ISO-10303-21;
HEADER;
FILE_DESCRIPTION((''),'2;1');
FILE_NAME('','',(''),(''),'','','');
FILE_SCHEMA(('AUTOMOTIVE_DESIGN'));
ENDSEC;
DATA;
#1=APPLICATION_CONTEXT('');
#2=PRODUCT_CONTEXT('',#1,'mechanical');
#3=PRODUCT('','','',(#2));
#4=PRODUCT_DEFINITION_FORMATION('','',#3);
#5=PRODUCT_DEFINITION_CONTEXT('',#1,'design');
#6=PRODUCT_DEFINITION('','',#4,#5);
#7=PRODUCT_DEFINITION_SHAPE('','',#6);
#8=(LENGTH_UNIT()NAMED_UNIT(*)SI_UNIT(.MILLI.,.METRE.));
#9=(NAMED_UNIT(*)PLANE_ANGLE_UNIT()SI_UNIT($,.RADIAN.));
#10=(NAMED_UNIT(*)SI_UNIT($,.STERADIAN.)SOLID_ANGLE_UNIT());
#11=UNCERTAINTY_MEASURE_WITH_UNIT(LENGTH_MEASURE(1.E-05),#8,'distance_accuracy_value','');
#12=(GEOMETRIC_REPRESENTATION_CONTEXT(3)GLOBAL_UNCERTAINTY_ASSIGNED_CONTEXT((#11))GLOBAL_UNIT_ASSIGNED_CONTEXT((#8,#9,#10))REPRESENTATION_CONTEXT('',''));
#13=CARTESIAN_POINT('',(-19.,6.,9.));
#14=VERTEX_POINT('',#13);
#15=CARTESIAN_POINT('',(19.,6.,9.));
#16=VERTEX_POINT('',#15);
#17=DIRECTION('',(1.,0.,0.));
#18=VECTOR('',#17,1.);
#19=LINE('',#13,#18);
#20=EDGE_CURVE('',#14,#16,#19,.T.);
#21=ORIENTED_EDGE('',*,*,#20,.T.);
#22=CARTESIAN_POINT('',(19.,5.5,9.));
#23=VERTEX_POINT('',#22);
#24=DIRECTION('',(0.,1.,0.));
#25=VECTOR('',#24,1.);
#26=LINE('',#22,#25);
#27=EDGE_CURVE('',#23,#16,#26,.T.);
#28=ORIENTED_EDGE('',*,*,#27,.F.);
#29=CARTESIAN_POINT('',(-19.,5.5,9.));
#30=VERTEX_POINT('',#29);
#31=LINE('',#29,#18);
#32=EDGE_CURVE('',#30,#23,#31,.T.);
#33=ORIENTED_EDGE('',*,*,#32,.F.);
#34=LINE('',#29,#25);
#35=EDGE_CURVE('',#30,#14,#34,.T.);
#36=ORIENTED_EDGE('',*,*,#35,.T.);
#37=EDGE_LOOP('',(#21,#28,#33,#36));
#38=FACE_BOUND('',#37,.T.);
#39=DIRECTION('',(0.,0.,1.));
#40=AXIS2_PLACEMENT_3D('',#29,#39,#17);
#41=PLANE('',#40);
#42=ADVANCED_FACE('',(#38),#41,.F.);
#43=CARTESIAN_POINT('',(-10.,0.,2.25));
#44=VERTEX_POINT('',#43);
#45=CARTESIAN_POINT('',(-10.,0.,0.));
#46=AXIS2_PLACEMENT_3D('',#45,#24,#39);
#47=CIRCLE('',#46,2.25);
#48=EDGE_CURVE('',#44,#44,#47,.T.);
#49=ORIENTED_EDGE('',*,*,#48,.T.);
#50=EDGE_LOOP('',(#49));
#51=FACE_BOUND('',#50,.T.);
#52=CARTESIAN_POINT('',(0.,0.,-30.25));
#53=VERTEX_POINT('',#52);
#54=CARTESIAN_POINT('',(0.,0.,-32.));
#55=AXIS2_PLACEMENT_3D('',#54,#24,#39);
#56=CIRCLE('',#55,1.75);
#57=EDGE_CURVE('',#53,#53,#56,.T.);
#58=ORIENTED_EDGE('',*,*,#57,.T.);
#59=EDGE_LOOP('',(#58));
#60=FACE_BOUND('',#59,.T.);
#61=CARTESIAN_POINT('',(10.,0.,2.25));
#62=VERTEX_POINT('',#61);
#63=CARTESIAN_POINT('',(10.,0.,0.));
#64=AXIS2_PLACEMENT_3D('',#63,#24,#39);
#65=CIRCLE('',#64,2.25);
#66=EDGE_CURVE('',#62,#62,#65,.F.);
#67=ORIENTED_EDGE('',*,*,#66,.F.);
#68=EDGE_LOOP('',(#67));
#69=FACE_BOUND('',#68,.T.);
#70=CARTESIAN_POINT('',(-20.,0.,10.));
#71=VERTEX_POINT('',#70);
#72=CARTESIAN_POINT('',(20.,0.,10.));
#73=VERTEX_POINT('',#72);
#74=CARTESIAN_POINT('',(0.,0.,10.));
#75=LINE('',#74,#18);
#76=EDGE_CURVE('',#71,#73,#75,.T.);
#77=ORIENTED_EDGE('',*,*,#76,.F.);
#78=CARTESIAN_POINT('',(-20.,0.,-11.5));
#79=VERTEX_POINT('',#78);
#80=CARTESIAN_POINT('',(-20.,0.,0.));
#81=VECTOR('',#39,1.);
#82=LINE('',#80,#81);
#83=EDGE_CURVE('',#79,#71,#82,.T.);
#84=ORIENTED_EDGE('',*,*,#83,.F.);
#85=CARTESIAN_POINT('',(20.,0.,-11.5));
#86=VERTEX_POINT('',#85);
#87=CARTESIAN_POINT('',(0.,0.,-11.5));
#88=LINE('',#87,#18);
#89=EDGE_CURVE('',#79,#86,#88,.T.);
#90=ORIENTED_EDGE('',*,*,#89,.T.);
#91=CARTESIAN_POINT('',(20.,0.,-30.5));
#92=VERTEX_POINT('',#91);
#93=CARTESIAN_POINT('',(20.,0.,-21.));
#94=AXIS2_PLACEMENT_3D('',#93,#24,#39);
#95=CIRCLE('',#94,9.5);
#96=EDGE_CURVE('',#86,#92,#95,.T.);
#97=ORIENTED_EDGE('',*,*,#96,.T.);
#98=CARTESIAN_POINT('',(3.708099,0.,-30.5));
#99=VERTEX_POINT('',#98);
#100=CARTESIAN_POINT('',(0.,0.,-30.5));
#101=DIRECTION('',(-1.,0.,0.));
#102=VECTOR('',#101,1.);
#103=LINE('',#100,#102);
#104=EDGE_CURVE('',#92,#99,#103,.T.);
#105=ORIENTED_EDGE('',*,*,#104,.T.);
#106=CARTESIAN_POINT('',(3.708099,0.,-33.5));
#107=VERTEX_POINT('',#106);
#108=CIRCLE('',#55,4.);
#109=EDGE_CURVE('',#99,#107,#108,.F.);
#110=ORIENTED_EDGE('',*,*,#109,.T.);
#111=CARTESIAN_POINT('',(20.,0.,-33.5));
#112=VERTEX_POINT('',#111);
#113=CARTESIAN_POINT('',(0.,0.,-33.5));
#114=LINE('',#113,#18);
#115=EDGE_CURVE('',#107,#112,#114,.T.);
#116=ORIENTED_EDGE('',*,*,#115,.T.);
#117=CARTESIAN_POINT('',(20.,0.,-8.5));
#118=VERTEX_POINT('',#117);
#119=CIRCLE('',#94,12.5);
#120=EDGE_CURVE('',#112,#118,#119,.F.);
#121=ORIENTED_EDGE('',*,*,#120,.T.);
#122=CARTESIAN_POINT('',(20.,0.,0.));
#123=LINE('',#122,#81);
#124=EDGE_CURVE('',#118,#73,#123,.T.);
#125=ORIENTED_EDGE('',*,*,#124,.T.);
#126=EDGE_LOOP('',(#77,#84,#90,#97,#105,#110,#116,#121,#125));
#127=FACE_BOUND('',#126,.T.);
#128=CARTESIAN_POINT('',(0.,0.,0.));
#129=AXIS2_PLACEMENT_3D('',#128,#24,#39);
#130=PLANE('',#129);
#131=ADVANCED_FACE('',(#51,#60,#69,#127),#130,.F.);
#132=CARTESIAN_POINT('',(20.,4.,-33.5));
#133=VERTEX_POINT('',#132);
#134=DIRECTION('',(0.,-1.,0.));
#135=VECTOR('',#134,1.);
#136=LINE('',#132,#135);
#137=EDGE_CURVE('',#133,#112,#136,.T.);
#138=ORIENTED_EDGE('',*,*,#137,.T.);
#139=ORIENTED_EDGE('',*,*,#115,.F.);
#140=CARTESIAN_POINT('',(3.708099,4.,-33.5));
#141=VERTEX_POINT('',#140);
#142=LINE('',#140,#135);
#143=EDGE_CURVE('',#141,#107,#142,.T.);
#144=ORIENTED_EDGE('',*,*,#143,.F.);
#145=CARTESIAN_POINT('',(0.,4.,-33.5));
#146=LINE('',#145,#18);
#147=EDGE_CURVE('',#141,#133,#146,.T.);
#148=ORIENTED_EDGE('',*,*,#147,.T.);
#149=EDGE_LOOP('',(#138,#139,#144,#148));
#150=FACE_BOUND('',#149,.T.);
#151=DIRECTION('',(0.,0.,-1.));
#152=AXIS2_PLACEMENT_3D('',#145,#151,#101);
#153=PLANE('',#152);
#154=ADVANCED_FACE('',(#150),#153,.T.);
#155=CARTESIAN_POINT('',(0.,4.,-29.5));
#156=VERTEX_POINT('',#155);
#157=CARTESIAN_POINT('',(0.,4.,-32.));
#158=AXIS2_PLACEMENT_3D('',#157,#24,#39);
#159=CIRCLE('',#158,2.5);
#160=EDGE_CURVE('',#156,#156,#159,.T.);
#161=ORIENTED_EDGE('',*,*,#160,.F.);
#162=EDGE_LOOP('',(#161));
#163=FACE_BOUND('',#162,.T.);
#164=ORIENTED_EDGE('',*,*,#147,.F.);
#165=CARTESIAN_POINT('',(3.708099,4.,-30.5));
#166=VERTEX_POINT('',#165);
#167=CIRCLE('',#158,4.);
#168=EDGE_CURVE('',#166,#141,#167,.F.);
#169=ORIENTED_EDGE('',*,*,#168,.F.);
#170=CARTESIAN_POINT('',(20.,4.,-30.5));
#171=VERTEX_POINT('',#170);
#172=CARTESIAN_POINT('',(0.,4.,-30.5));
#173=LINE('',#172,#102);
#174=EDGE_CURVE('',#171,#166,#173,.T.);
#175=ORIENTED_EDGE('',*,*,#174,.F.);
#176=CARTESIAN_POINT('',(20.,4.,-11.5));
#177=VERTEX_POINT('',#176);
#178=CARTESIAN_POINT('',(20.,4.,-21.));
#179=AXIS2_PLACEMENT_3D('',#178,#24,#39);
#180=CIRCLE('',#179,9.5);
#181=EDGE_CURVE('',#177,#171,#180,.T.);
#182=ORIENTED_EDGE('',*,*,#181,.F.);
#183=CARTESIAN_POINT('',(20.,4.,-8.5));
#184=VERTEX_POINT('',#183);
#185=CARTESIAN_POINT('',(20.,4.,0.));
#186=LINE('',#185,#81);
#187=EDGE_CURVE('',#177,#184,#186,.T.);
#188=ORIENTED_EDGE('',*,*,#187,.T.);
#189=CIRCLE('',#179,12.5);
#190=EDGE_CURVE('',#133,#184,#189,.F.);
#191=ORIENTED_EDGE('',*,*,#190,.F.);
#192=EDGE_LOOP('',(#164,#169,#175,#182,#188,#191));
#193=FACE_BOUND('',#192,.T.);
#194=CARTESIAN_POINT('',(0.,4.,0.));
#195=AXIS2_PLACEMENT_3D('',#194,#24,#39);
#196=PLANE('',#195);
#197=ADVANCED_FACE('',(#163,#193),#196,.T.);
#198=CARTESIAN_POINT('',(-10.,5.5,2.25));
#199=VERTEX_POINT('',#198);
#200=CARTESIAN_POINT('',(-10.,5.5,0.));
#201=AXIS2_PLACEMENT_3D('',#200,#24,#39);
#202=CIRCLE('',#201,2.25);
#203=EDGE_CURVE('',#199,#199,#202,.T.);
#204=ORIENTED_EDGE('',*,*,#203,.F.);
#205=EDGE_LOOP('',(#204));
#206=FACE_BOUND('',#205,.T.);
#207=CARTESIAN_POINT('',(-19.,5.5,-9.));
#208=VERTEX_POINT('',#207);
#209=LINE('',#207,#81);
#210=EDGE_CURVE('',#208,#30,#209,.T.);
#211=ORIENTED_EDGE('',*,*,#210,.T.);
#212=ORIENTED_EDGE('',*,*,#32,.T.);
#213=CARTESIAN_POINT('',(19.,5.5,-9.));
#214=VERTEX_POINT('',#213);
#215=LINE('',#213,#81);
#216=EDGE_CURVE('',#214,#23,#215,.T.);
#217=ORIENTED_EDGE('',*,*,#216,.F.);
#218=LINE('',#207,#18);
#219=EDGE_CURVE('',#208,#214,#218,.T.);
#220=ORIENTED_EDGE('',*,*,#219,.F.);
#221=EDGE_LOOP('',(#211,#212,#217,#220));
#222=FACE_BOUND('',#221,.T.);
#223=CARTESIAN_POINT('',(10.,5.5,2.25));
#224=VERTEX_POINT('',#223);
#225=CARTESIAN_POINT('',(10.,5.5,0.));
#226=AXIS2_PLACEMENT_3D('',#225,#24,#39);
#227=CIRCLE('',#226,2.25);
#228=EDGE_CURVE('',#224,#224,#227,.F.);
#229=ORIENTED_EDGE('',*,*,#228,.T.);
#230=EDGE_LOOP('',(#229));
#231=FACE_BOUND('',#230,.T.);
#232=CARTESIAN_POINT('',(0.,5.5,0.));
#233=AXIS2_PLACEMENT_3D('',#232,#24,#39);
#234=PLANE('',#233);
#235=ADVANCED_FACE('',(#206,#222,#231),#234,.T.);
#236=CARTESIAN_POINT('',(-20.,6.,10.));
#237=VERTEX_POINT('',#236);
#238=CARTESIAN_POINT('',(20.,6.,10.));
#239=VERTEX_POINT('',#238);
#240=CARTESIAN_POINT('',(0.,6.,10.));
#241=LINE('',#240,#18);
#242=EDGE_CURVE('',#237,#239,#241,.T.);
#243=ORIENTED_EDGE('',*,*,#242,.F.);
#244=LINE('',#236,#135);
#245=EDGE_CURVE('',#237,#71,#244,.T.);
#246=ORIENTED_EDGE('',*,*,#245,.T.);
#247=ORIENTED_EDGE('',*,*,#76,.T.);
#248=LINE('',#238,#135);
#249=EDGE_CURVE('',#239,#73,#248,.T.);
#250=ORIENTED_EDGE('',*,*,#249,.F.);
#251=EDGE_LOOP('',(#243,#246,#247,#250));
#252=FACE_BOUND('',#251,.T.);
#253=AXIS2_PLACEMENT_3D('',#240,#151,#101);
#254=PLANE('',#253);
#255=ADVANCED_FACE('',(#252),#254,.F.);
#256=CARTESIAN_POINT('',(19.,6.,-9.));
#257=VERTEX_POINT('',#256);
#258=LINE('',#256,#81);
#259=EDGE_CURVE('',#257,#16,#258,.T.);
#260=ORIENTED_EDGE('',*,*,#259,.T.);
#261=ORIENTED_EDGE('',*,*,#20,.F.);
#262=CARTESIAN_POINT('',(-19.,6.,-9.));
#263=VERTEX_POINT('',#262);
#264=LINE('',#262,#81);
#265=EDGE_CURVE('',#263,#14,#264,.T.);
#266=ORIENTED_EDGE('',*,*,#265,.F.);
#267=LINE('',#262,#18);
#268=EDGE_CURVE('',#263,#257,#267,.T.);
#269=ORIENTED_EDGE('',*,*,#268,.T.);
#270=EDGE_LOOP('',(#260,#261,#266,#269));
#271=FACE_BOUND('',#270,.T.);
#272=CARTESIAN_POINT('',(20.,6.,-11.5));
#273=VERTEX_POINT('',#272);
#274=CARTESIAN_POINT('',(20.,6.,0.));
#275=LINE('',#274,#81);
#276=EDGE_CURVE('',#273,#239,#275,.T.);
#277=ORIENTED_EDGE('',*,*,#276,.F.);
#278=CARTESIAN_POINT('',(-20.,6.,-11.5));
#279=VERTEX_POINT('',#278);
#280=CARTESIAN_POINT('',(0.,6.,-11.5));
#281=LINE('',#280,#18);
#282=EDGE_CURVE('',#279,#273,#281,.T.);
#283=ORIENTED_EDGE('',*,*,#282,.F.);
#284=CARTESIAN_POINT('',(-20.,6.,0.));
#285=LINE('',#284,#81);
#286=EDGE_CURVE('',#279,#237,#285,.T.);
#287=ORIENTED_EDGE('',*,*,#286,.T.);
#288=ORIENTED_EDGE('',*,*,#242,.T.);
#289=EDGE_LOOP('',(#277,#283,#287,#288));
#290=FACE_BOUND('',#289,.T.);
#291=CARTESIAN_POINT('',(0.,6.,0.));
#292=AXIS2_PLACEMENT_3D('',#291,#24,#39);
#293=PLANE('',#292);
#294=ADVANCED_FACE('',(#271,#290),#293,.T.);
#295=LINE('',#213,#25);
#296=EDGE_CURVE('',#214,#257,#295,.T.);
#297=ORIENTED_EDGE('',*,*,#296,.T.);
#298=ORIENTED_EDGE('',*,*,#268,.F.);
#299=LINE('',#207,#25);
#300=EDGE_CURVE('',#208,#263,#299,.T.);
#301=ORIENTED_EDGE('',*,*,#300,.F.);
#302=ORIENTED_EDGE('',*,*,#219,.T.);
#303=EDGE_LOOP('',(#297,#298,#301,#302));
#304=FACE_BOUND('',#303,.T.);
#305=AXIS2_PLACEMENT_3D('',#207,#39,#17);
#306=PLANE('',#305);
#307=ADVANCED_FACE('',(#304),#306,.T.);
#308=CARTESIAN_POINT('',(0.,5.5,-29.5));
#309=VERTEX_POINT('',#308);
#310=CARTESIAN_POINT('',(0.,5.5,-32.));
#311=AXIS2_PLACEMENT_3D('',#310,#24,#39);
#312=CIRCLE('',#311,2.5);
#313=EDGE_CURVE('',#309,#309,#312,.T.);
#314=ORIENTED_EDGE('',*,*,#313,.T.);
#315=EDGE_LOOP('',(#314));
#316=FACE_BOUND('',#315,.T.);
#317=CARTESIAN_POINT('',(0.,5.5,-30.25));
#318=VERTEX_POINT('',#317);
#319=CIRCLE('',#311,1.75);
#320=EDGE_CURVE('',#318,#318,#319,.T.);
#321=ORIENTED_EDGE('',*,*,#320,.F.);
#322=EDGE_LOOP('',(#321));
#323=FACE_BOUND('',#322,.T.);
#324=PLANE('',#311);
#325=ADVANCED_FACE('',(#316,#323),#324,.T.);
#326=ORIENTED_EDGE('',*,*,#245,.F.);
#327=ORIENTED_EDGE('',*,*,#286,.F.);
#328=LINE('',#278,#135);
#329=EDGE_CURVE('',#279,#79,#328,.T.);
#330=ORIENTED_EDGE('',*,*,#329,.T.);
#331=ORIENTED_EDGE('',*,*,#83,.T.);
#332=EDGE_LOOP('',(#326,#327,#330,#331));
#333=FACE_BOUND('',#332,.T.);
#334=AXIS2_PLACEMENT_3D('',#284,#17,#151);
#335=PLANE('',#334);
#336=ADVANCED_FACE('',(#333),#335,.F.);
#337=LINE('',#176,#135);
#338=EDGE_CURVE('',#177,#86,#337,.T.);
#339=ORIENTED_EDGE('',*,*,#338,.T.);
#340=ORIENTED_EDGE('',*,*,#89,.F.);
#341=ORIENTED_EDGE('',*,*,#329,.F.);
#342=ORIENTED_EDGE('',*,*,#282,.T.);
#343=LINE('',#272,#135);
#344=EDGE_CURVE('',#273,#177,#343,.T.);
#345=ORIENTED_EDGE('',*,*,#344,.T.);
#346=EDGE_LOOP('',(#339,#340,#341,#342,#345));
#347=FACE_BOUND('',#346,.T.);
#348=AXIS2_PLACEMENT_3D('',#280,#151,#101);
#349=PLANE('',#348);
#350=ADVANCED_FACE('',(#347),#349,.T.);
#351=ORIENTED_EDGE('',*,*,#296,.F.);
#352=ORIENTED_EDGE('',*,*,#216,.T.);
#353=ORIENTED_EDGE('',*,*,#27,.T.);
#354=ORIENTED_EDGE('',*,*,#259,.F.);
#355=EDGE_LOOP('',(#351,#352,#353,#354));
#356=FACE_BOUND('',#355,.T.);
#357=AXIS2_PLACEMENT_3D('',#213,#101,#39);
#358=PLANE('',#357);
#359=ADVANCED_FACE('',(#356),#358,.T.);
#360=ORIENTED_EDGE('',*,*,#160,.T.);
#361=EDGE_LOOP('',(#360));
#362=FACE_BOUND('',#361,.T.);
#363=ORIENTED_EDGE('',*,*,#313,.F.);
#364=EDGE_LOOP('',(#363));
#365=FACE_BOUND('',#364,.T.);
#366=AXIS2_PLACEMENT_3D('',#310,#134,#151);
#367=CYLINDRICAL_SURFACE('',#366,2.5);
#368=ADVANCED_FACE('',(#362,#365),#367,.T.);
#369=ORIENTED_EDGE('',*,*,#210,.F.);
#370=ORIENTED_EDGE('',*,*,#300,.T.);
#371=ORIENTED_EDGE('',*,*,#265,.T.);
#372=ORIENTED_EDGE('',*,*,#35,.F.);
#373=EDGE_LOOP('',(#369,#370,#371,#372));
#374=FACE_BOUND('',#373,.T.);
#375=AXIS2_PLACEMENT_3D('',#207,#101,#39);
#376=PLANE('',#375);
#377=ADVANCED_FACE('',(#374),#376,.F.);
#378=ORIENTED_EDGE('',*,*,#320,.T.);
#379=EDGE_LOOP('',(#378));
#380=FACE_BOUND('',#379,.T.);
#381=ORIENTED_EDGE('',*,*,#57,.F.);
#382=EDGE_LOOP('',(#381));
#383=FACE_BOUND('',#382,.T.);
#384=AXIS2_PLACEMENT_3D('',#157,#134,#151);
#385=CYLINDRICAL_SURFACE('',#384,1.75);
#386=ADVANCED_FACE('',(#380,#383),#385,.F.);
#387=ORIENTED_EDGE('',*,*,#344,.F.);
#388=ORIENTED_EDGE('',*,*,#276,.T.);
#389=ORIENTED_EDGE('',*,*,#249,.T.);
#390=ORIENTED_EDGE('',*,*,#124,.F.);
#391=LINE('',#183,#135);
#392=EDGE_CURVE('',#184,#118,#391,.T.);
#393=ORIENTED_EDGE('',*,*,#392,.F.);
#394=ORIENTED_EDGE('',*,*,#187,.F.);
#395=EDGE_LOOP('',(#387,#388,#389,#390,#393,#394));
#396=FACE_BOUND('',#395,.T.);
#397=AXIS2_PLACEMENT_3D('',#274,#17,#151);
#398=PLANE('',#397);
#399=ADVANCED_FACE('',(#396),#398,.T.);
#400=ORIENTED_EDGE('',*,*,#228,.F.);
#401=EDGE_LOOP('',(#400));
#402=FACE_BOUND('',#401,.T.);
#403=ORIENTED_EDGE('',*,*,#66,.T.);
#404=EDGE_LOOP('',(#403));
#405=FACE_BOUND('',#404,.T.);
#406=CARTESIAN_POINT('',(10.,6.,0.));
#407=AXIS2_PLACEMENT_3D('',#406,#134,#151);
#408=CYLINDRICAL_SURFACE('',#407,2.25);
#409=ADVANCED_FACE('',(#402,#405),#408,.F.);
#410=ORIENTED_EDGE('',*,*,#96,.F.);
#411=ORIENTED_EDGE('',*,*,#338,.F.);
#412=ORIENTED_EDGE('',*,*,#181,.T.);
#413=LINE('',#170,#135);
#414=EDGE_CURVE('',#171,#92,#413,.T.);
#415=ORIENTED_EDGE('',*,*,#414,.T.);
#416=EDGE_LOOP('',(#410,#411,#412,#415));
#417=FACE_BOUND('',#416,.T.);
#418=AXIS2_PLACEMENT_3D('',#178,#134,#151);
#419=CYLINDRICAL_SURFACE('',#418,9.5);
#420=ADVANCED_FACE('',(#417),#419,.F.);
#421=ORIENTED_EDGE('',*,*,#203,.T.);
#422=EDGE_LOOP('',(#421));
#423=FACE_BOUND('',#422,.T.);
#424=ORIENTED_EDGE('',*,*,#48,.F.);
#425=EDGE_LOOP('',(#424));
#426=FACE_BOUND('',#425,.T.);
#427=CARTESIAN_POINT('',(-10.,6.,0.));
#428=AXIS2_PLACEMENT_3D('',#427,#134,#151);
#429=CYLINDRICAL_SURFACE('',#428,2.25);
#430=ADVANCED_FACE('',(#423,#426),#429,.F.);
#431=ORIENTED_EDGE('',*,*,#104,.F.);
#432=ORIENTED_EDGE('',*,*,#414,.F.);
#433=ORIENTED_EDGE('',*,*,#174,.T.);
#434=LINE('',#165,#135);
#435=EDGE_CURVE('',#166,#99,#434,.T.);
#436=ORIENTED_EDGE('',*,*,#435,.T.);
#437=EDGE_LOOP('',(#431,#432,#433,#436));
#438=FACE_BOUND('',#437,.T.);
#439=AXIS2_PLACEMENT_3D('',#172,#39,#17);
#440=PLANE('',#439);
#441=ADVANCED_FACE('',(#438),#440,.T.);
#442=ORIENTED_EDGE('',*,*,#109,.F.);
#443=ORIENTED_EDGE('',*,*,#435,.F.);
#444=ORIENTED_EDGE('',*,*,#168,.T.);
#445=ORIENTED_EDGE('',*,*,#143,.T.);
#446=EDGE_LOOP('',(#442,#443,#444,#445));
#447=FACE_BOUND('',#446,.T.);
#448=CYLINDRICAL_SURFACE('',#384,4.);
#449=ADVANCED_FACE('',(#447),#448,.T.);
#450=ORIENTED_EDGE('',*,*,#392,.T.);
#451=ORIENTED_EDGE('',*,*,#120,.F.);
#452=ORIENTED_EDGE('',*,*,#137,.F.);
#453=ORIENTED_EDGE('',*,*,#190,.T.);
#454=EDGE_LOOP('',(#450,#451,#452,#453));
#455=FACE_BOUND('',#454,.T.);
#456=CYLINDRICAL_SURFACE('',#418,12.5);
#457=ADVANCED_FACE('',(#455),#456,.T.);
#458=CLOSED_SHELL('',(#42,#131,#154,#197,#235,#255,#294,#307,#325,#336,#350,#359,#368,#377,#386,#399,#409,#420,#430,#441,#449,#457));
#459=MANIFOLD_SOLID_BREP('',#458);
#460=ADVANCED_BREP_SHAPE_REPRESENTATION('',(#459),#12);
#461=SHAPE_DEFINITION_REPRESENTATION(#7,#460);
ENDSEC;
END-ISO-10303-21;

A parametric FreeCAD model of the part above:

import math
import FreeCAD as App
import Part
import Sketcher
from FreeCAD import Vector

doc = App.newDocument("Part")
body = doc.addObject("PartDesign::Body", "Body")

# Sketch on XZ plane
sketch1 = body.newObject("Sketcher::SketchObject", "Sketch")
sketch1.AttachmentSupport = (doc.getObject("XZ_Plane"), [""])
sketch1.MapMode = "FlatFace"
sketch1.addGeometry([
    Part.LineSegment(Vector(-20, 10, 0), Vector(20, 10, 0)),  # 0
    Part.LineSegment(Vector(20, 10, 0), Vector(20, -11.5, 0)),  # 1
    Part.LineSegment(Vector(20, -11.5, 0), Vector(-20, -11.5, 0)),  # 2
    Part.LineSegment(Vector(-20, -11.5, 0), Vector(-20, 10, 0)),  # 3
    Part.Circle(Vector(-10, 0, 0), Vector(0, 0, 1), 2.2),  # 4
    Part.Circle(Vector(10, 0, 0), Vector(0, 0, 1), 2.2),  # 5
], False)
sketch1.addConstraint([
    Sketcher.Constraint("Coincident", 0, 2, 1, 1),
    Sketcher.Constraint("Coincident", 1, 2, 2, 1),
    Sketcher.Constraint("Coincident", 2, 2, 3, 1),
    Sketcher.Constraint("Coincident", 3, 2, 0, 1),
    Sketcher.Constraint("Horizontal", 0),
    Sketcher.Constraint("Vertical", 1),
    Sketcher.Constraint("Horizontal", 2),
    Sketcher.Constraint("Vertical", 3),
    Sketcher.Constraint("Equal", 4, 5),
    Sketcher.Constraint("Symmetric", 4, 3, 5, 3, -1, 1),
    Sketcher.Constraint("PointOnObject", 4, 3, -1),
    Sketcher.Constraint("Diameter", 4, 4.5),
    Sketcher.Constraint("DistanceX", 0, 1, 0, 2, 40.0),
    Sketcher.Constraint("DistanceY", 1, 2, 1, 1, 21.5),
    Sketcher.Constraint("DistanceX", 4, 3, -1, 1, 10.0),
    Sketcher.Constraint("DistanceX", -1, 1, 0, 2, 20.0),
    Sketcher.Constraint("DistanceY", -1, 1, 0, 2, 10.0),
])
pad1 = body.newObject("PartDesign::Pad", "Pad")
pad1.Profile = sketch1
pad1.Length = 6
pad1.Reversed = True

# Sketch on XZ plane
sketch2 = body.newObject("Sketcher::SketchObject", "Sketch001")
sketch2.AttachmentSupport = (doc.getObject("XZ_Plane"), [""])
sketch2.MapMode = "FlatFace"
sketch2.addGeometry([
    Part.LineSegment(Vector(20, -11.5, 0), Vector(20, -8.5, 0)),  # 0
    Part.ArcOfCircle(Part.Circle(Vector(20, -21, 0), Vector(0, 0, 1), 12.5), math.radians(-90), math.radians(90)),  # 1
    Part.LineSegment(Vector(20, -33.5, 0), Vector(3.7, -33.5, 0)),  # 2
    Part.ArcOfCircle(Part.Circle(Vector(0, -32, 0), Vector(0, 0, 1), 4), math.radians(22), math.radians(338)),  # 3
    Part.LineSegment(Vector(3.7, -30.5, 0), Vector(20, -30.5, 0)),  # 4
    Part.ArcOfCircle(Part.Circle(Vector(20, -21, 0), Vector(0, 0, 1), 9.5), math.radians(-90), math.radians(90)),  # 5
    Part.Circle(Vector(0, -32, 0), Vector(0, 0, 1), 1.8),  # 6
], False)
sketch2.addConstraint([
    Sketcher.Constraint("Coincident", 0, 2, 1, 2),
    Sketcher.Constraint("Tangent", 1, 1, 2, 1),
    Sketcher.Constraint("Coincident", 2, 2, 3, 2),
    Sketcher.Constraint("Coincident", 3, 1, 4, 1),
    Sketcher.Constraint("Tangent", 4, 2, 5, 1),
    Sketcher.Constraint("Coincident", 5, 2, 0, 1),
    Sketcher.Constraint("Vertical", 0),
    Sketcher.Constraint("Horizontal", 2),
    Sketcher.Constraint("Horizontal", 4),
    Sketcher.Constraint("Coincident", 5, 3, 1, 3),
    Sketcher.Constraint("Coincident", 6, 3, 3, 3),
    Sketcher.Constraint("PointOnObject", 3, 3, -2),
    Sketcher.Constraint("Vertical", 5, 3, 0, 2),
    Sketcher.Constraint("Vertical", 2, 2, 3, 1),
    Sketcher.Constraint("Radius", 3, 4.0),
    Sketcher.Constraint("Diameter", 6, 3.5),
    Sketcher.Constraint("Radius", 1, 12.5),
    Sketcher.Constraint("Radius", 5, 9.5),
    Sketcher.Constraint("DistanceX", -1, 1, 1, 3, 20.0),
    Sketcher.Constraint("DistanceY", 1, 3, -1, 1, 21.0),
])
pad2 = body.newObject("PartDesign::Pad", "Pad001")
pad2.Profile = sketch2
pad2.Length = 4
pad2.Reversed = True

# Sketch on XZ plane
sketch3 = body.newObject("Sketcher::SketchObject", "Sketch002")
sketch3.AttachmentSupport = (doc.getObject("XZ_Plane"), [""])
sketch3.MapMode = "FlatFace"
sketch3.AttachmentOffset = App.Placement(Vector(0, 0, -4), App.Rotation())
sketch3.addGeometry([
    Part.Circle(Vector(0, -32, 0), Vector(0, 0, 1), 2.5),
    Part.Circle(Vector(0, -32, 0), Vector(0, 0, 1), 1.8),
], False)
sketch3.addConstraint([
    Sketcher.Constraint("Coincident", 1, 3, 0, 3),
    Sketcher.Constraint("PointOnObject", 0, 3, -2),
    Sketcher.Constraint("Diameter", 0, 5.0),
    Sketcher.Constraint("Diameter", 1, 3.5),
    Sketcher.Constraint("DistanceY", 0, 3, -1, 1, 32.0),
])
pad3 = body.newObject("PartDesign::Pad", "Pad002")
pad3.Profile = sketch3
pad3.Length = 1.5
pad3.Reversed = True

# Sketch on XZ plane
sketch4 = body.newObject("Sketcher::SketchObject", "Sketch003")
sketch4.AttachmentSupport = (doc.getObject("XZ_Plane"), [""])
sketch4.MapMode = "FlatFace"
sketch4.AttachmentOffset = App.Placement(Vector(0, 0, -6), App.Rotation())
sketch4.addGeometry([
    Part.LineSegment(Vector(-19, -9, 0), Vector(-19, 9, 0)),
    Part.LineSegment(Vector(-19, 9, 0), Vector(19, 9, 0)),
    Part.LineSegment(Vector(19, 9, 0), Vector(19, -9, 0)),
    Part.LineSegment(Vector(19, -9, 0), Vector(-19, -9, 0)),
], False)
sketch4.addConstraint([
    Sketcher.Constraint("Coincident", 0, 2, 1, 1),
    Sketcher.Constraint("Coincident", 1, 2, 2, 1),
    Sketcher.Constraint("Coincident", 2, 2, 3, 1),
    Sketcher.Constraint("Coincident", 3, 2, 0, 1),
    Sketcher.Constraint("Vertical", 0),
    Sketcher.Constraint("Horizontal", 1),
    Sketcher.Constraint("Vertical", 2),
    Sketcher.Constraint("Horizontal", 3),
    Sketcher.Constraint("Symmetric", 0, 2, 2, 2, -1, 1),
    Sketcher.Constraint("DistanceX", 1, 1, 1, 2, 38.0),
    Sketcher.Constraint("DistanceY", 0, 1, 0, 2, 18.0),
])
pocket1 = body.newObject("PartDesign::Pocket", "Pocket")
pocket1.Profile = sketch4
pocket1.Length = 0.5
pocket1.Reversed = True

doc.recompute()
